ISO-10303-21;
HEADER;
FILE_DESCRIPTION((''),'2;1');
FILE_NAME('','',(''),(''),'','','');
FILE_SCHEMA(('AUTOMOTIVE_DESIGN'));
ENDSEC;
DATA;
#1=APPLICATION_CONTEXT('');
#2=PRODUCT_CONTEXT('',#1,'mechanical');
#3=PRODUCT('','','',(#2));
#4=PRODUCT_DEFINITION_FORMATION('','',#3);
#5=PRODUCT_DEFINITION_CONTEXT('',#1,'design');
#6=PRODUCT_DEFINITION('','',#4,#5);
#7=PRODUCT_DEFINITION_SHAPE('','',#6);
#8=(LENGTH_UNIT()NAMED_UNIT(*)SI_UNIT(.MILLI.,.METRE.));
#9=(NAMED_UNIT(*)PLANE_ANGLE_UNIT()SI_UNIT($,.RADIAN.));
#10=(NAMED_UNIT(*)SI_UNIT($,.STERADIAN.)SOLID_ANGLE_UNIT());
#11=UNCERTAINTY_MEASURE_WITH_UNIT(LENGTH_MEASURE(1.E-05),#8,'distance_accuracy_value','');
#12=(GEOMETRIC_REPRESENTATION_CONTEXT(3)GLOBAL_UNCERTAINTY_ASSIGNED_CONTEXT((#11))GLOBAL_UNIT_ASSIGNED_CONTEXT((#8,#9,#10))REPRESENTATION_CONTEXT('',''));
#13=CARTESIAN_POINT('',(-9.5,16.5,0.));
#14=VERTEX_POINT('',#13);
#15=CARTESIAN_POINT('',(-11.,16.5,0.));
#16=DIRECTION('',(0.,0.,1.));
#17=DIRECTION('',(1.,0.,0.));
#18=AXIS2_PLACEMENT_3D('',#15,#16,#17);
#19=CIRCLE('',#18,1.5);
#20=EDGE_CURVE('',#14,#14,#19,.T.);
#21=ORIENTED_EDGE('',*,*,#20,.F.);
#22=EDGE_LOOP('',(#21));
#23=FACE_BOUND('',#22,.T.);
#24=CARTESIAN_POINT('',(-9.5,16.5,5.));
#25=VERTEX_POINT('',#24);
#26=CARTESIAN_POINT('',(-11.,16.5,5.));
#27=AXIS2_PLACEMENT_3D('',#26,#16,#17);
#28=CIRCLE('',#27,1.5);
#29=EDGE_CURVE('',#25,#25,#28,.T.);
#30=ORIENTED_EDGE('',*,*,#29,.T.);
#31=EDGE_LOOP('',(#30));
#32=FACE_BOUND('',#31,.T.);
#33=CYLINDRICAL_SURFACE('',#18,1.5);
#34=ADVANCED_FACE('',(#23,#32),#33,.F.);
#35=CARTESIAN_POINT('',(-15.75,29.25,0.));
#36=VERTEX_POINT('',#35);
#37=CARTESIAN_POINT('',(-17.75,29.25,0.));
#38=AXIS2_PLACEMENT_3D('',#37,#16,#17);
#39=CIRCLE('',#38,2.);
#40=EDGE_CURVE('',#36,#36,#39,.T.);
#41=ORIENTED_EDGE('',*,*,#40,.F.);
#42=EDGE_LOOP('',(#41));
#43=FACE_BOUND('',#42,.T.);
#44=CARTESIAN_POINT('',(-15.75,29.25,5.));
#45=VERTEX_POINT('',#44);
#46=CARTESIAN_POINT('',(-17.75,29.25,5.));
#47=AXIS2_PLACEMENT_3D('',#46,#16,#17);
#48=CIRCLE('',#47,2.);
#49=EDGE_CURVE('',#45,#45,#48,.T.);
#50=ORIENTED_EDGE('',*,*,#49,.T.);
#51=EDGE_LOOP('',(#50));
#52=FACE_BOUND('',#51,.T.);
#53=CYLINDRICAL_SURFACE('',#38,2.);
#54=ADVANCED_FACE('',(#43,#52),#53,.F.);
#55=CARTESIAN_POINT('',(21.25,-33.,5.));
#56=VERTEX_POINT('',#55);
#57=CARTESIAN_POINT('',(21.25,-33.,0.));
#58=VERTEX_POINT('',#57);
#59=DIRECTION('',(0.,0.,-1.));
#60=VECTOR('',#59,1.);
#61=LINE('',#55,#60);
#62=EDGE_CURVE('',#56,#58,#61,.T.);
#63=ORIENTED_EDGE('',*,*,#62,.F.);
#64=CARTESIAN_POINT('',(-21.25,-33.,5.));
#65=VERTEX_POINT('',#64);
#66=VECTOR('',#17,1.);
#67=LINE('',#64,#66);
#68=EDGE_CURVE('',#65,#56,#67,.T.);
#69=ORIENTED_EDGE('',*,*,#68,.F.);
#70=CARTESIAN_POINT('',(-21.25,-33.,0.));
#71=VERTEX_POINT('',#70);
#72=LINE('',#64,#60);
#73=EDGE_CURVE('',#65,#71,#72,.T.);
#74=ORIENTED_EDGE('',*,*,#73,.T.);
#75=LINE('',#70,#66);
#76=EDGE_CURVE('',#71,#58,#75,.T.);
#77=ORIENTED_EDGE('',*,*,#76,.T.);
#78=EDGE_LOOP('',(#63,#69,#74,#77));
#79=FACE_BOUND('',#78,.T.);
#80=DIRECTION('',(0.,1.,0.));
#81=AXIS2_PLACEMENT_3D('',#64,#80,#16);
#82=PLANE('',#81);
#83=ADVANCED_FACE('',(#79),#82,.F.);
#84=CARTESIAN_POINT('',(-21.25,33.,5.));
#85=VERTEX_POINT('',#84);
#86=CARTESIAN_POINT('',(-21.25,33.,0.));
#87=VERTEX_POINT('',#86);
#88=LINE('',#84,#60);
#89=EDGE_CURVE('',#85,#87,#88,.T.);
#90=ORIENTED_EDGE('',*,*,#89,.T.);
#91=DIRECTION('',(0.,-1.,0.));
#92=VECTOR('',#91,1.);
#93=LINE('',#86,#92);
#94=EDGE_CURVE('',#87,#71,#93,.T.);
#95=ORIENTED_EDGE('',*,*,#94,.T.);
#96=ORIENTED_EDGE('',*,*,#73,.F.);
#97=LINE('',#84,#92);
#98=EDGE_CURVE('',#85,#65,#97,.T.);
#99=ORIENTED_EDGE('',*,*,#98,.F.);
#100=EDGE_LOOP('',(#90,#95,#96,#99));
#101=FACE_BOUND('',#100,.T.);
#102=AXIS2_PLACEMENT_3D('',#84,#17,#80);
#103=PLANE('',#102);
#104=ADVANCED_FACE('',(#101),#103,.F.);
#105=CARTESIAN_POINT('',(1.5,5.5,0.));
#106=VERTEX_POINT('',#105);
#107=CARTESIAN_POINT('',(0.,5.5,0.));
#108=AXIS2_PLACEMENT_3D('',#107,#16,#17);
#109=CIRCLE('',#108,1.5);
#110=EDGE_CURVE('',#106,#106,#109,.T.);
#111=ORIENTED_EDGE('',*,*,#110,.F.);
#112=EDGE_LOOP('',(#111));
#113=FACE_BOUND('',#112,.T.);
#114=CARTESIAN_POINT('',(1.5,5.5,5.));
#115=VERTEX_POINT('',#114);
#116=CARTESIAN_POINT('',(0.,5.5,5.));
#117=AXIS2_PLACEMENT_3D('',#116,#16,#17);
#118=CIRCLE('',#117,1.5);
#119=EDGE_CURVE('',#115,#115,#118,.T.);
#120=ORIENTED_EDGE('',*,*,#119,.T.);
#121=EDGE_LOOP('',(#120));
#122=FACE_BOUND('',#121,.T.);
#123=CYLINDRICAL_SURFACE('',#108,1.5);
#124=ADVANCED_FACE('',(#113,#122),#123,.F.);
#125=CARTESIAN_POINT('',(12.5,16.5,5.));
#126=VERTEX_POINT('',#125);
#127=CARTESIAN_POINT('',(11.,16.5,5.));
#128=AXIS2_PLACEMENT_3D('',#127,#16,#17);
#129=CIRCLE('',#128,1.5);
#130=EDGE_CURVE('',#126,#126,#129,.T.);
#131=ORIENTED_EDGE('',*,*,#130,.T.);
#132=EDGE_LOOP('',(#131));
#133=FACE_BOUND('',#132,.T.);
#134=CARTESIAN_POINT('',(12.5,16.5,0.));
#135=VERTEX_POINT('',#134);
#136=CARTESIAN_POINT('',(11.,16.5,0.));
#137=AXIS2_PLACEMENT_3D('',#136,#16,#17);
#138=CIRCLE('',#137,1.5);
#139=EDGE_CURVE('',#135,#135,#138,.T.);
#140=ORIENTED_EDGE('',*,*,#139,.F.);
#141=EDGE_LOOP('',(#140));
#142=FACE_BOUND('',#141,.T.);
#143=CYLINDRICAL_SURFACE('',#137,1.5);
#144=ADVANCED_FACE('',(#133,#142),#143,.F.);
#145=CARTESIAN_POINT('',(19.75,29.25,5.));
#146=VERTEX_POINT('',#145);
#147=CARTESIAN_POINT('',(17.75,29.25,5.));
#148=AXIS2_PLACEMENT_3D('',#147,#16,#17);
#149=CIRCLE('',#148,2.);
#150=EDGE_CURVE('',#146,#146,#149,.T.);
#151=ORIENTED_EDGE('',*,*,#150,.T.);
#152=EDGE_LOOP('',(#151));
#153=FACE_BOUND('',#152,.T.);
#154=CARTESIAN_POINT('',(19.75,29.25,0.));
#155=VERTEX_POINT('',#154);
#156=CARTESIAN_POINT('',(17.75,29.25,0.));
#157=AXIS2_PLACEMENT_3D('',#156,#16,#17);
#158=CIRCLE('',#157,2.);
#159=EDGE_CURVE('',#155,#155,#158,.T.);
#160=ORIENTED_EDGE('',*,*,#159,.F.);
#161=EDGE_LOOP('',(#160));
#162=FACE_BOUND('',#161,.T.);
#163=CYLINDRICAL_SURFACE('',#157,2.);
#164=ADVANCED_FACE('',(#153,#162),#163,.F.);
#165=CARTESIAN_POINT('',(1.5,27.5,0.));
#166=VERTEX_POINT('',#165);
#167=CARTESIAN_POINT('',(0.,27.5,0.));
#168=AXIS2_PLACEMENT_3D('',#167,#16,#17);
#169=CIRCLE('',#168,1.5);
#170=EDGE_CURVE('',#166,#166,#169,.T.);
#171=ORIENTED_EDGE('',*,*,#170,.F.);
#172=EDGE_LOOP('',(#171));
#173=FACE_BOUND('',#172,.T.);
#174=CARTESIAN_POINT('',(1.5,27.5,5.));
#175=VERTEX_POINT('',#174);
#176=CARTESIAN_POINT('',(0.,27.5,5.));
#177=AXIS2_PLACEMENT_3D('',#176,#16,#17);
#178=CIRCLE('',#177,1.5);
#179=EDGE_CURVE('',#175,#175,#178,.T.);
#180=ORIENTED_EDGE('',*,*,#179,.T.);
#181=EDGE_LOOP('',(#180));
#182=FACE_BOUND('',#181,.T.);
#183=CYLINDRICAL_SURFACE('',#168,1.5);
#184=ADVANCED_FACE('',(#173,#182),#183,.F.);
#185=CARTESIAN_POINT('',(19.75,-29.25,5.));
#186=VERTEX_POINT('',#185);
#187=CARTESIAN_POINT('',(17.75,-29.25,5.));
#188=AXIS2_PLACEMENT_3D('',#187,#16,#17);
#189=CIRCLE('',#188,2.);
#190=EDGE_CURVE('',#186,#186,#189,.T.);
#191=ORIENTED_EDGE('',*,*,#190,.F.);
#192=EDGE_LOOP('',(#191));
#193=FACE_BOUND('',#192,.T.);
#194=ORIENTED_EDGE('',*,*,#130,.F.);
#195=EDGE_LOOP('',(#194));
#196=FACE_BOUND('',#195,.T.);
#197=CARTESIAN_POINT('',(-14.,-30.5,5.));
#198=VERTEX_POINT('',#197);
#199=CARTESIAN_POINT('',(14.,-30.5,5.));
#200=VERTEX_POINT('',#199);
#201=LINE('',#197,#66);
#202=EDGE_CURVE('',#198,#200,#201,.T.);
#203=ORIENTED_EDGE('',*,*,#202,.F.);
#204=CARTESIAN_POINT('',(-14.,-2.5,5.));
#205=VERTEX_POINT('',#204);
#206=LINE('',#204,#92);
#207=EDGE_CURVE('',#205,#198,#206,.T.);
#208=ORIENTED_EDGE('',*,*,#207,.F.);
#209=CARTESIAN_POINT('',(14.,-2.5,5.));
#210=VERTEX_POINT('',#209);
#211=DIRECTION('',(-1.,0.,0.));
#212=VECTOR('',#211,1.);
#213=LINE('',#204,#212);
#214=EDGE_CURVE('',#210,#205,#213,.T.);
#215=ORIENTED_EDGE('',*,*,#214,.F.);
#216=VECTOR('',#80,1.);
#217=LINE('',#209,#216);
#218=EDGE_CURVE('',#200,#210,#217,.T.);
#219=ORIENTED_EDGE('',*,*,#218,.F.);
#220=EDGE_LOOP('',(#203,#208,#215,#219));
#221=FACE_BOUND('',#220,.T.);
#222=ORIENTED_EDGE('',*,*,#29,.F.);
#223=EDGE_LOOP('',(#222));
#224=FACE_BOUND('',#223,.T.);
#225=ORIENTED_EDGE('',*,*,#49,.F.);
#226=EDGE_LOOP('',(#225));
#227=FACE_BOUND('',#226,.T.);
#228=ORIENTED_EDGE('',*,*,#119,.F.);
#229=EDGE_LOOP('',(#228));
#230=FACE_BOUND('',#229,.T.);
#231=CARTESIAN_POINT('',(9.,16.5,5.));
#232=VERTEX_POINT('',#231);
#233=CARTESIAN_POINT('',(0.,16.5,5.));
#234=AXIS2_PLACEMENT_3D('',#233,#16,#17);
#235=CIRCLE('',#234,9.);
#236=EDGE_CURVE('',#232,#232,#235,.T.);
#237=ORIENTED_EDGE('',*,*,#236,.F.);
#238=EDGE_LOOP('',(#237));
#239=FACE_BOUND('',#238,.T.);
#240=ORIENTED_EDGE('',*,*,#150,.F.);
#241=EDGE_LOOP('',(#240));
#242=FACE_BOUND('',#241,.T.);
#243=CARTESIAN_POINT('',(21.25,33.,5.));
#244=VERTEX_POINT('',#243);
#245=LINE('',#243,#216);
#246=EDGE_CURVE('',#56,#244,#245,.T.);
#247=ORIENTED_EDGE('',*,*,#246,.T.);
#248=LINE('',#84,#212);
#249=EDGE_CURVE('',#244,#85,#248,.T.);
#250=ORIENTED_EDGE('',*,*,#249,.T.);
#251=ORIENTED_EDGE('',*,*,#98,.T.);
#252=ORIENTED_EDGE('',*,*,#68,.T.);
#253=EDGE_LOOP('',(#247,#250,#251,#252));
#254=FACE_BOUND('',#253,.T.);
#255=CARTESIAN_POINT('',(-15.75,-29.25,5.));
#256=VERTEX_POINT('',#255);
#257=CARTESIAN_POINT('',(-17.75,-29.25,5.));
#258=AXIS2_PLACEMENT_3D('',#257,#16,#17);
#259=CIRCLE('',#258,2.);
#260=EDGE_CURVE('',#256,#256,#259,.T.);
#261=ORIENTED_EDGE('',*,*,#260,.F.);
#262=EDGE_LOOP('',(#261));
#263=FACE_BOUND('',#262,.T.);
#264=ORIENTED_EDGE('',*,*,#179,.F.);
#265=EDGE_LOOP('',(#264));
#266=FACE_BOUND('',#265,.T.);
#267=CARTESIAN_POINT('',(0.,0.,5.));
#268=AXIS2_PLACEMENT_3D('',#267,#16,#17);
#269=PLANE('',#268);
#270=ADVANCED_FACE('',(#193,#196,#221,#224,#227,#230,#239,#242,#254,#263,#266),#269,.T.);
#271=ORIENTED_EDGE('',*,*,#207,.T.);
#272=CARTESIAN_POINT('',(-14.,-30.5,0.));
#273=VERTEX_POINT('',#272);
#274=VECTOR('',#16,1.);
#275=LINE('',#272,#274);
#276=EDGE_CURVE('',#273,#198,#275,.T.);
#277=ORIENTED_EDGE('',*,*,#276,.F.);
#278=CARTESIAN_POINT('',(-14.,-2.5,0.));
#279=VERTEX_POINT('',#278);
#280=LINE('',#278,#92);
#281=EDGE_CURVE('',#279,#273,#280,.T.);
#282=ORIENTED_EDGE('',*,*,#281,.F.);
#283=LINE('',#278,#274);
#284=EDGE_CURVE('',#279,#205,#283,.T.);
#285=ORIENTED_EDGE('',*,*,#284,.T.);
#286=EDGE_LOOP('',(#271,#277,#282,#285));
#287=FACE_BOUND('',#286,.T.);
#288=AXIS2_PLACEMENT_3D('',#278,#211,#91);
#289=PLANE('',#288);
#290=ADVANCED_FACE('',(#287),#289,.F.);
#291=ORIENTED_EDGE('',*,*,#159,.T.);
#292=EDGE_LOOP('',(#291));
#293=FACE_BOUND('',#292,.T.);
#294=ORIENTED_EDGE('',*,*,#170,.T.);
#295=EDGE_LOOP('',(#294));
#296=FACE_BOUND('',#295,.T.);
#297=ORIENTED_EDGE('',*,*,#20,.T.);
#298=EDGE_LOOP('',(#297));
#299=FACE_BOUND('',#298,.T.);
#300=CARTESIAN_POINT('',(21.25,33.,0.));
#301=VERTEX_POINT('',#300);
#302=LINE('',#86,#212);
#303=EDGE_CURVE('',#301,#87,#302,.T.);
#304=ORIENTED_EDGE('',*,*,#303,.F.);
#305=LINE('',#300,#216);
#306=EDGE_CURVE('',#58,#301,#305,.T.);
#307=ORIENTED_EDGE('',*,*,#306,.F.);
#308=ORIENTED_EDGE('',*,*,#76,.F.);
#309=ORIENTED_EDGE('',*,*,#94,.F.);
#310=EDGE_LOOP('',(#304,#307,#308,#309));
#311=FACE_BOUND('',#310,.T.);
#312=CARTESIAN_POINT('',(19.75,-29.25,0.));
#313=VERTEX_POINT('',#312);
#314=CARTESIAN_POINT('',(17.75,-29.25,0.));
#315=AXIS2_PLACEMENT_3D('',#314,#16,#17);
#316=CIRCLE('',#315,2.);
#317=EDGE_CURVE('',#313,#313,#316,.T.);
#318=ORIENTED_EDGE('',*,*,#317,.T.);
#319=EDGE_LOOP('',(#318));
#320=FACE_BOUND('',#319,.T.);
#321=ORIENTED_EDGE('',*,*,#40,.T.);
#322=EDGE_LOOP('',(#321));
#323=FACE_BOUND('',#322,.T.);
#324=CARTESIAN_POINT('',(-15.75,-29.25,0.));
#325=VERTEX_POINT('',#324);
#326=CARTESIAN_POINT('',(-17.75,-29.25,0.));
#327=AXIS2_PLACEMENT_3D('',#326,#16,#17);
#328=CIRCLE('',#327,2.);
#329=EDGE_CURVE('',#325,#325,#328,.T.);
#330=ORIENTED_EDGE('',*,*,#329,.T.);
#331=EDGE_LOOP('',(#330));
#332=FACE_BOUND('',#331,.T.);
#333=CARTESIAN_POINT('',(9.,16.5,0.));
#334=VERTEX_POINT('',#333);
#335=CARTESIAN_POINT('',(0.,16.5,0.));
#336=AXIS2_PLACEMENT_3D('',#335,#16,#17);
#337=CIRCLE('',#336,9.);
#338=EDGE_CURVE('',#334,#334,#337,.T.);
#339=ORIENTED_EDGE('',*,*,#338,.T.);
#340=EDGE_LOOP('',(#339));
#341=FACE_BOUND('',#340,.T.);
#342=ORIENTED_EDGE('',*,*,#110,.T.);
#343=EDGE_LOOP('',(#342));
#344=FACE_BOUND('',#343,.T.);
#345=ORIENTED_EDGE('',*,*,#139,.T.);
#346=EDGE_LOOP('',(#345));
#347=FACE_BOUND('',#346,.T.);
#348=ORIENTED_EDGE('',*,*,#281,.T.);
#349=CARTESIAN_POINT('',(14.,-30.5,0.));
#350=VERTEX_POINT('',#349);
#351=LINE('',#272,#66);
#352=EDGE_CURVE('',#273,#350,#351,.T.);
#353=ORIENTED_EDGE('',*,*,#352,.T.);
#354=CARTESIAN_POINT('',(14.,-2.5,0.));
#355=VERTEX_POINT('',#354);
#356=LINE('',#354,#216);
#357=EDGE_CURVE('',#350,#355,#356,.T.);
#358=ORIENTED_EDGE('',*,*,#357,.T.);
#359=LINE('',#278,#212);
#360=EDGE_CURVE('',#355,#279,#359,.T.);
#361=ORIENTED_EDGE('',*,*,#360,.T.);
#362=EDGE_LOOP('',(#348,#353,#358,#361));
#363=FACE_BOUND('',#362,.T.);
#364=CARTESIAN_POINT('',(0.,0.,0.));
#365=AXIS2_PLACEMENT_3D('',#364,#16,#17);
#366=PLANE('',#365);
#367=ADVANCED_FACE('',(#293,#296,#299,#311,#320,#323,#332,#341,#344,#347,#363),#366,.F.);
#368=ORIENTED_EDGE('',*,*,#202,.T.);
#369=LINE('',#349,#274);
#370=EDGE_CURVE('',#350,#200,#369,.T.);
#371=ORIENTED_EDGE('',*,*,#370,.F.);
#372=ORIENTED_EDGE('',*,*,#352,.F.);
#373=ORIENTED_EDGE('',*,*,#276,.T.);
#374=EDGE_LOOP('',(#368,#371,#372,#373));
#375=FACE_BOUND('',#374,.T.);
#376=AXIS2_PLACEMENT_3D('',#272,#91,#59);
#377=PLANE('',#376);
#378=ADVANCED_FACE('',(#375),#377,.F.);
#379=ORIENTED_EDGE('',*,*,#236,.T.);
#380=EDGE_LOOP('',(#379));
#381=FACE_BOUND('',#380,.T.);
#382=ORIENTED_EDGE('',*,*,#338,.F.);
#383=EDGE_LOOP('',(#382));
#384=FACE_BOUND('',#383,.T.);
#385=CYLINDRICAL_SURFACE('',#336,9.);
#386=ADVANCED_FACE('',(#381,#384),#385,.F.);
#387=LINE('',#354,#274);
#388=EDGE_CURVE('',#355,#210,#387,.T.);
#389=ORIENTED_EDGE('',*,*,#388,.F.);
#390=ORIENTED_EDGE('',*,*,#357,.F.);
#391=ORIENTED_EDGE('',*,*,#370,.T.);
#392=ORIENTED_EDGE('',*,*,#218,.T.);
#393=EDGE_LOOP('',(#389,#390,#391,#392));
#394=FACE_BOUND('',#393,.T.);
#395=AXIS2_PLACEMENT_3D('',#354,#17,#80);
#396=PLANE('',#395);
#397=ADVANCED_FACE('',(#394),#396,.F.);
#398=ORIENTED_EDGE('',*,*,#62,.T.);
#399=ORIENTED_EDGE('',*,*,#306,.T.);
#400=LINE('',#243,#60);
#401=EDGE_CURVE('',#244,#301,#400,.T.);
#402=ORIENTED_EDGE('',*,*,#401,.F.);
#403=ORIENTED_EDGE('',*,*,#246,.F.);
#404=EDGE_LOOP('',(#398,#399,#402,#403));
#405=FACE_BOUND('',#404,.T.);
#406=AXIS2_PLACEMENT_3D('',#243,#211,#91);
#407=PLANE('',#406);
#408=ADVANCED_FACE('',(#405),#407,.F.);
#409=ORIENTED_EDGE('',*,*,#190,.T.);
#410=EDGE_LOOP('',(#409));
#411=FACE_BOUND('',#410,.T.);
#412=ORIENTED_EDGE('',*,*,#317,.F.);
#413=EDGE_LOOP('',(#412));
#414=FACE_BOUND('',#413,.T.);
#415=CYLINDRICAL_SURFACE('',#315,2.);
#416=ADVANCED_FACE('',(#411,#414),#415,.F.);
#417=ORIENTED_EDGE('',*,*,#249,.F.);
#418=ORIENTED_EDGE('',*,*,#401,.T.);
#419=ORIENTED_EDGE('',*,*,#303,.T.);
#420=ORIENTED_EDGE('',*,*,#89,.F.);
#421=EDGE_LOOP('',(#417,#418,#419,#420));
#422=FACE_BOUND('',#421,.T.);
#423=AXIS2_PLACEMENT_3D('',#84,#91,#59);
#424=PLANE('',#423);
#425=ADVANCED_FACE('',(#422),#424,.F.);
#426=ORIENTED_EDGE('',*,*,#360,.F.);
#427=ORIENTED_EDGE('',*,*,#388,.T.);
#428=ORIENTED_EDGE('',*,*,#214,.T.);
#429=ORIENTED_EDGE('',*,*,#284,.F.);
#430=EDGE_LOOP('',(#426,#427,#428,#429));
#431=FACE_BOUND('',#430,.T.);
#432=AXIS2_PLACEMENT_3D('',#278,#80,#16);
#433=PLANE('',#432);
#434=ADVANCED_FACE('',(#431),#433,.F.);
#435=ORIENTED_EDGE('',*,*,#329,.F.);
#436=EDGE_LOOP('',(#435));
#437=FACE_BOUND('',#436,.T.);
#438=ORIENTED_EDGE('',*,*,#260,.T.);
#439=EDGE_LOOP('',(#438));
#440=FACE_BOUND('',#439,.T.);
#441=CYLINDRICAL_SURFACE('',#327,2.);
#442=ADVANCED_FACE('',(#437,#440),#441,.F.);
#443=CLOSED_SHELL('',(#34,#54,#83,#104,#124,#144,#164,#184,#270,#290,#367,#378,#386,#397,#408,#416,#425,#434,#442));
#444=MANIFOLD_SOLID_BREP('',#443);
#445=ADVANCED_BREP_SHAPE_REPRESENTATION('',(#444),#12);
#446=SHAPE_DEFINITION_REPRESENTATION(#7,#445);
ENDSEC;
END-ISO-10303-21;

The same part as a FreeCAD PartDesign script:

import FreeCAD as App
import Part
import Sketcher
from FreeCAD import Vector
Q = App.Units.Quantity


def add_polygon(sketch, points):
    """Adds a closed chain of lines whose ends are joined by coincident constraints."""
    first, n = sketch.GeometryCount, len(points)
    for a, b in zip(points, points[1:] + points[:1]):
        sketch.addGeometry(Part.LineSegment(App.Vector(*a, 0), App.Vector(*b, 0)), False)
    for i in range(n):
        sketch.addConstraint(Sketcher.Constraint("Coincident", first + i, 2, first + (i + 1) % n, 1))

doc = App.newDocument("Part")
body = doc.addObject("PartDesign::Body", "Body")

sketch1 = doc.addObject("Sketcher::SketchObject", "Sketch")
body.addObject(sketch1)
sketch1.AttachmentSupport = (doc.XY_Plane, [""])
sketch1.MapMode = "FlatFace"
add_polygon(sketch1, [(-21, 33), (-21, -33), (21, -33), (21, 33)])
sketch1.addConstraint(Sketcher.Constraint("Vertical", 0))
sketch1.addConstraint(Sketcher.Constraint("Horizontal", 1))
sketch1.addConstraint(Sketcher.Constraint("Vertical", 2))
sketch1.addConstraint(Sketcher.Constraint("Horizontal", 3))
sketch1.addConstraint(Sketcher.Constraint("Symmetric", 0, 2, 2, 2, -1, 1))
sketch1.addConstraint(Sketcher.Constraint("DistanceY", 0, 2, 0, 1, Q("66 mm")))
sketch1.addConstraint(Sketcher.Constraint("DistanceX", 1, 1, 1, 2, Q("42.5 mm")))
pad1 = doc.addObject("PartDesign::Pad", "Pad")
body.addObject(pad1)
pad1.Profile = sketch1
pad1.Length = 5

sketch2 = doc.addObject("Sketcher::SketchObject", "Sketch001")
body.addObject(sketch2)
sketch2.AttachmentSupport = (doc.XY_Plane, [""])
sketch2.MapMode = "FlatFace"
sketch2.AttachmentOffset = App.Placement(Vector(0, 0, 5), App.Rotation())
sketch2.addGeometry(Part.Circle(Vector(0, 16.5, 0), Vector(0, 0, 1), 9), False)
sketch2.addGeometry(Part.Circle(Vector(0, 27.5, 0), Vector(0, 0, 1), 1.5), False)
sketch2.addGeometry(Part.Circle(Vector(11, 16.5, 0), Vector(0, 0, 1), 1.5), False)
sketch2.addGeometry(Part.Circle(Vector(-11, 16.5, 0), Vector(0, 0, 1), 1.5), False)
sketch2.addGeometry(Part.Circle(Vector(0, 5.5, 0), Vector(0, 0, 1), 1.5), False)
sketch2.addConstraint(Sketcher.Constraint("Equal", 1, 2))
sketch2.addConstraint(Sketcher.Constraint("Equal", 2, 3))
sketch2.addConstraint(Sketcher.Constraint("Equal", 3, 4))
sketch2.addConstraint(Sketcher.Constraint("Symmetric", 2, 3, 3, 3, -2))
sketch2.addConstraint(Sketcher.Constraint("PointOnObject", 0, 3, -2))
sketch2.addConstraint(Sketcher.Constraint("PointOnObject", 1, 3, -2))
sketch2.addConstraint(Sketcher.Constraint("PointOnObject", 4, 3, -2))
sketch2.addConstraint(Sketcher.Constraint("Horizontal", 0, 3, 2, 3))
sketch2.addConstraint(Sketcher.Constraint("Diameter", 0, Q("18 mm")))
sketch2.addConstraint(Sketcher.Constraint("Diameter", 1, Q("3 mm")))
sketch2.addConstraint(Sketcher.Constraint("DistanceX", -1, 1, 2, 3, Q("11 mm")))
sketch2.addConstraint(Sketcher.Constraint("DistanceY", 0, 3, 1, 3, Q("11 mm")))
sketch2.addConstraint(Sketcher.Constraint("DistanceY", 4, 3, 0, 3, Q("11 mm")))
sketch2.addConstraint(Sketcher.Constraint("DistanceY", -1, 1, 0, 3, Q("16.5 mm")))
pocket1 = doc.addObject("PartDesign::Pocket", "Pocket")
body.addObject(pocket1)
pocket1.Profile = sketch2
pocket1.Type = "ThroughAll"

sketch3 = doc.addObject("Sketcher::SketchObject", "Sketch002")
body.addObject(sketch3)
sketch3.AttachmentSupport = (doc.XY_Plane, [""])
sketch3.MapMode = "FlatFace"
sketch3.AttachmentOffset = App.Placement(Vector(0, 0, 5), App.Rotation())
add_polygon(sketch3, [(-14, -2), (-14, -30), (14, -30), (14, -2)])
sketch3.addConstraint(Sketcher.Constraint("Vertical", 0))
sketch3.addConstraint(Sketcher.Constraint("Horizontal", 1))
sketch3.addConstraint(Sketcher.Constraint("Vertical", 2))
sketch3.addConstraint(Sketcher.Constraint("Horizontal", 3))
sketch3.addConstraint(Sketcher.Constraint("Equal", 3, 0))
sketch3.addConstraint(Sketcher.Constraint("DistanceX", 1, 1, 1, 2, Q("28 mm")))
sketch3.addConstraint(Sketcher.Constraint("DistanceX", 0, 2, -1, 1, Q("14 mm")))
sketch3.addConstraint(Sketcher.Constraint("DistanceY", 0, 2, -1, 1, Q("30.5 mm")))
pocket2 = doc.addObject("PartDesign::Pocket", "Pocket001")
body.addObject(pocket2)
pocket2.Profile = sketch3
pocket2.Type = "ThroughAll"

sketch4 = doc.addObject("Sketcher::SketchObject", "Sketch003")
body.addObject(sketch4)
sketch4.AttachmentSupport = (doc.XY_Plane, [""])
sketch4.MapMode = "FlatFace"
sketch4.AttachmentOffset = App.Placement(Vector(0, 0, 5), App.Rotation())
sketch4.addGeometry(Part.Circle(Vector(-17.8, 29.2, 0), Vector(0, 0, 1), 2), False)
sketch4.addGeometry(Part.Circle(Vector(17.8, 29.2, 0), Vector(0, 0, 1), 2), False)
sketch4.addGeometry(Part.Circle(Vector(-17.8, -29.2, 0), Vector(0, 0, 1), 2), False)
sketch4.addGeometry(Part.Circle(Vector(17.8, -29.2, 0), Vector(0, 0, 1), 2), False)
sketch4.addConstraint(Sketcher.Constraint("Equal", 0, 1))
sketch4.addConstraint(Sketcher.Constraint("Equal", 1, 2))
sketch4.addConstraint(Sketcher.Constraint("Equal", 2, 3))
sketch4.addConstraint(Sketcher.Constraint("Symmetric", 1, 3, 2, 3, -1, 1))
sketch4.addConstraint(Sketcher.Constraint("Symmetric", 0, 3, 3, 3, -1, 1))
sketch4.addConstraint(Sketcher.Constraint("Symmetric", 0, 3, 1, 3, -2))
sketch4.addConstraint(Sketcher.Constraint("Diameter", 0, Q("4 mm")))
sketch4.addConstraint(Sketcher.Constraint("DistanceX", 0, 3, 1, 3, Q("35.5 mm")))
sketch4.addConstraint(Sketcher.Constraint("DistanceY", 2, 3, 0, 3, Q("58.5 mm")))
pocket3 = doc.addObject("PartDesign::Pocket", "Pocket002")
body.addObject(pocket3)
pocket3.Profile = sketch4
pocket3.Type = "ThroughAll"

doc.recompute()
